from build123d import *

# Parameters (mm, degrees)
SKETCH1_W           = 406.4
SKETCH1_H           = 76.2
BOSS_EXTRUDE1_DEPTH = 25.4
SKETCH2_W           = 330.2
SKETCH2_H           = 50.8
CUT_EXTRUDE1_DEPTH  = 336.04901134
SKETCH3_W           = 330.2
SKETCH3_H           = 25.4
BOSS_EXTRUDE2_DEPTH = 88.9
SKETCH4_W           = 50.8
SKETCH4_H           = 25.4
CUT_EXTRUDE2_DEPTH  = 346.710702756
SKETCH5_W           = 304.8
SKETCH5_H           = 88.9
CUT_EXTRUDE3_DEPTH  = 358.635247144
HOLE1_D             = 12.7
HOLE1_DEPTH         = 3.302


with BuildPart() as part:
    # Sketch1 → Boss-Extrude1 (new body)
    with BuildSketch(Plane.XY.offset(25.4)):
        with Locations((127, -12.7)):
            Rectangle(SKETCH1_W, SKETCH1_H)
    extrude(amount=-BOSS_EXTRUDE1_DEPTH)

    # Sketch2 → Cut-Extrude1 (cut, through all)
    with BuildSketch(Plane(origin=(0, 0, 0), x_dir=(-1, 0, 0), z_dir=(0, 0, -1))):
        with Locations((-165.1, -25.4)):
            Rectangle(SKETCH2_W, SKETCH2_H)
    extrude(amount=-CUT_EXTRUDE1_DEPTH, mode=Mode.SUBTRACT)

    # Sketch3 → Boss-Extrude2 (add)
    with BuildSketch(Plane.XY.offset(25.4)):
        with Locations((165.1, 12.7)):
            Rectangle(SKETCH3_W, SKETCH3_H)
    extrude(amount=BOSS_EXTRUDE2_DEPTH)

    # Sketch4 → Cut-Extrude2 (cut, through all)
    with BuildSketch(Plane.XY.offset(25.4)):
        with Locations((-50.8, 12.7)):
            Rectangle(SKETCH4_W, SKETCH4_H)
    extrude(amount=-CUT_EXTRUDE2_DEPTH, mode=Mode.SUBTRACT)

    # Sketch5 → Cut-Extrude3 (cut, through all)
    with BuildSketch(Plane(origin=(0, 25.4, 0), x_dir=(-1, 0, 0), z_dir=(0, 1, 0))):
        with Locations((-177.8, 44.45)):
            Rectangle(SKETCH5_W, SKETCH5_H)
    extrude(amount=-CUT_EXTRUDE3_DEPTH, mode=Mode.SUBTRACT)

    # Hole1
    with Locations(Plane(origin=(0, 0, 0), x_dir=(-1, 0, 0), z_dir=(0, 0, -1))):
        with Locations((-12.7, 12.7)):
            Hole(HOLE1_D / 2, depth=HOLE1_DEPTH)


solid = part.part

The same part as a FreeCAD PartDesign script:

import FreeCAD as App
import Part
import Sketcher
from FreeCAD import Vector
Q = App.Units.Quantity


def add_polygon(sketch, points):
    """Adds a closed chain of lines whose ends are joined by coincident constraints."""
    first, n = sketch.GeometryCount, len(points)
    for a, b in zip(points, points[1:] + points[:1]):
        sketch.addGeometry(Part.LineSegment(App.Vector(*a, 0), App.Vector(*b, 0)), False)
    for i in range(n):
        sketch.addConstraint(Sketcher.Constraint("Coincident", first + i, 2, first + (i + 1) % n, 1))

doc = App.newDocument("Part")
body = doc.addObject("PartDesign::Body", "Body")

sketch1 = body.newObject("Sketcher::SketchObject", "Sketch")
sketch1.AttachmentSupport = (doc.getObject("XY_Plane"), [""])
sketch1.MapMode = "FlatFace"
sketch1.AttachmentOffset = App.Placement(Vector(0, 0, 1 * 25.4), App.Rotation())
add_polygon(sketch1, [(-76.2, 25.4), (-76.2, -50.8), (330.2, -50.8), (330.2, 25.4)])
sketch1.addConstraint(Sketcher.Constraint("Vertical", 0))
sketch1.addConstraint(Sketcher.Constraint("Horizontal", 1))
sketch1.addConstraint(Sketcher.Constraint("Vertical", 2))
sketch1.addConstraint(Sketcher.Constraint("Horizontal", 3))
sketch1.addConstraint(Sketcher.Constraint("DistanceX", 1, 1, 1, 2, Q("16 in")))
sketch1.addConstraint(Sketcher.Constraint("DistanceY", 0, 2, 0, 1, Q("3 in")))
sketch1.addConstraint(Sketcher.Constraint("DistanceX", 0, 2, -1, 1, Q("3 in")))
sketch1.addConstraint(Sketcher.Constraint("DistanceY", 0, 2, -1, 1, Q("2 in")))
pad1 = body.newObject("PartDesign::Pad", "Pad")
pad1.Profile = sketch1
pad1.Length = Q("1 in")
pad1.Reversed = True

sketch2 = body.newObject("Sketcher::SketchObject", "Sketch001")
sketch2.AttachmentSupport = (doc.getObject("XY_Plane"), [""])
sketch2.MapMode = "FlatFace"
add_polygon(sketch2, [(330.2, 0), (330.2, -50.8), (0, -50.8), (0, 0)])
sketch2.addConstraint(Sketcher.Constraint("Vertical", 0))
sketch2.addConstraint(Sketcher.Constraint("Horizontal", 1))
sketch2.addConstraint(Sketcher.Constraint("Vertical", 2))
sketch2.addConstraint(Sketcher.Constraint("Horizontal", 3))
sketch2.addConstraint(Sketcher.Constraint("Coincident", 2, 2, -1, 1))
sketch2.addConstraint(Sketcher.Constraint("DistanceX", 1, 2, 1, 1, Q("13 in")))
sketch2.addConstraint(Sketcher.Constraint("DistanceY", 0, 2, 0, 1, Q("2 in")))
pocket1 = body.newObject("PartDesign::Pocket", "Pocket")
pocket1.Profile = sketch2
pocket1.Type = "ThroughAll"
pocket1.Reversed = True

sketch3 = body.newObject("Sketcher::SketchObject", "Sketch002")
sketch3.AttachmentSupport = (doc.getObject("XY_Plane"), [""])
sketch3.MapMode = "FlatFace"
sketch3.AttachmentOffset = App.Placement(Vector(0, 0, 1 * 25.4), App.Rotation())
add_polygon(sketch3, [(0, 25.4), (0, 0), (330.2, 0), (330.2, 25.4)])
sketch3.addConstraint(Sketcher.Constraint("Vertical", 0))
sketch3.addConstraint(Sketcher.Constraint("Horizontal", 1))
sketch3.addConstraint(Sketcher.Constraint("Vertical", 2))
sketch3.addConstraint(Sketcher.Constraint("Horizontal", 3))
sketch3.addConstraint(Sketcher.Constraint("Coincident", 0, 2, -1, 1))
sketch3.addConstraint(Sketcher.Constraint("DistanceX", 1, 1, 1, 2, Q("13 in")))
sketch3.addConstraint(Sketcher.Constraint("DistanceY", 0, 2, 0, 1, Q("1 in")))
pad2 = body.newObject("PartDesign::Pad", "Pad001")
pad2.Profile = sketch3
pad2.Length = Q("3.5 in")

sketch4 = body.newObject("Sketcher::SketchObject", "Sketch003")
sketch4.AttachmentSupport = (doc.getObject("XY_Plane"), [""])
sketch4.MapMode = "FlatFace"
sketch4.AttachmentOffset = App.Placement(Vector(0, 0, 1 * 25.4), App.Rotation())
add_polygon(sketch4, [(-76.2, 25.4), (-76.2, 0), (-25.4, 0), (-25.4, 25.4)])
sketch4.addConstraint(Sketcher.Constraint("Vertical", 0))
sketch4.addConstraint(Sketcher.Constraint("Horizontal", 1))
sketch4.addConstraint(Sketcher.Constraint("Vertical", 2))
sketch4.addConstraint(Sketcher.Constraint("Horizontal", 3))
sketch4.addConstraint(Sketcher.Constraint("PointOnObject", 0, 2, -1))
sketch4.addConstraint(Sketcher.Constraint("DistanceX", 1, 1, 1, 2, Q("2 in")))
sketch4.addConstraint(Sketcher.Constraint("DistanceY", 0, 2, 0, 1, Q("1 in")))
sketch4.addConstraint(Sketcher.Constraint("DistanceX", 0, 2, -1, 1, Q("3 in")))
pocket2 = body.newObject("PartDesign::Pocket", "Pocket001")
pocket2.Profile = sketch4
pocket2.Type = "ThroughAll"

sketch5 = body.newObject("Sketcher::SketchObject", "Sketch004")
sketch5.AttachmentSupport = (doc.getObject("XZ_Plane"), [""])
sketch5.MapMode = "FlatFace"
sketch5.AttachmentOffset = App.Placement(Vector(0, 0, -1 * 25.4), App.Rotation())
add_polygon(sketch5, [(330.2, 88.9), (330.2, 0), (25.4, 0), (25.4, 88.9)])
sketch5.addConstraint(Sketcher.Constraint("Vertical", 0))
sketch5.addConstraint(Sketcher.Constraint("Horizontal", 1))
sketch5.addConstraint(Sketcher.Constraint("Vertical", 2))
sketch5.addConstraint(Sketcher.Constraint("Horizontal", 3))
sketch5.addConstraint(Sketcher.Constraint("PointOnObject", 0, 2, -1))
sketch5.addConstraint(Sketcher.Constraint("DistanceX", 1, 2, 1, 1, Q("12 in")))
sketch5.addConstraint(Sketcher.Constraint("DistanceY", 0, 2, 0, 1, Q("3.5 in")))
sketch5.addConstraint(Sketcher.Constraint("DistanceX", -1, 1, 0, 2, Q("13 in")))
pocket3 = body.newObject("PartDesign::Pocket", "Pocket002")
pocket3.Profile = sketch5
pocket3.Type = "ThroughAll"
pocket3.Reversed = True

sketch6 = body.newObject("Sketcher::SketchObject", "Sketch005")
sketch6.AttachmentSupport = (doc.getObject("XY_Plane"), [""])
sketch6.MapMode = "FlatFace"
sketch6.addGeometry(Part.Circle(Vector(12.7, 12.7, 0), Vector(0, 0, 1), 6.35), False)
sketch6.addConstraint(Sketcher.Constraint("Diameter", 0, Q("0.5 in")))
sketch6.addConstraint(Sketcher.Constraint("DistanceX", -1, 1, 0, 3, Q("0.5 in")))
sketch6.addConstraint(Sketcher.Constraint("DistanceY", -1, 1, 0, 3, Q("0.5 in")))
doc.recompute()
hole = body.newObject("PartDesign::Hole", "Hole")
hole.Profile = sketch6
hole.ThreadType = "None"
hole.Diameter = Q("0.5 in")
hole.DepthType = "Dimension"
hole.Depth = Q("0.13 in")
hole.DrillPoint = "Flat"
hole.Reversed = True

doc.recompute()
